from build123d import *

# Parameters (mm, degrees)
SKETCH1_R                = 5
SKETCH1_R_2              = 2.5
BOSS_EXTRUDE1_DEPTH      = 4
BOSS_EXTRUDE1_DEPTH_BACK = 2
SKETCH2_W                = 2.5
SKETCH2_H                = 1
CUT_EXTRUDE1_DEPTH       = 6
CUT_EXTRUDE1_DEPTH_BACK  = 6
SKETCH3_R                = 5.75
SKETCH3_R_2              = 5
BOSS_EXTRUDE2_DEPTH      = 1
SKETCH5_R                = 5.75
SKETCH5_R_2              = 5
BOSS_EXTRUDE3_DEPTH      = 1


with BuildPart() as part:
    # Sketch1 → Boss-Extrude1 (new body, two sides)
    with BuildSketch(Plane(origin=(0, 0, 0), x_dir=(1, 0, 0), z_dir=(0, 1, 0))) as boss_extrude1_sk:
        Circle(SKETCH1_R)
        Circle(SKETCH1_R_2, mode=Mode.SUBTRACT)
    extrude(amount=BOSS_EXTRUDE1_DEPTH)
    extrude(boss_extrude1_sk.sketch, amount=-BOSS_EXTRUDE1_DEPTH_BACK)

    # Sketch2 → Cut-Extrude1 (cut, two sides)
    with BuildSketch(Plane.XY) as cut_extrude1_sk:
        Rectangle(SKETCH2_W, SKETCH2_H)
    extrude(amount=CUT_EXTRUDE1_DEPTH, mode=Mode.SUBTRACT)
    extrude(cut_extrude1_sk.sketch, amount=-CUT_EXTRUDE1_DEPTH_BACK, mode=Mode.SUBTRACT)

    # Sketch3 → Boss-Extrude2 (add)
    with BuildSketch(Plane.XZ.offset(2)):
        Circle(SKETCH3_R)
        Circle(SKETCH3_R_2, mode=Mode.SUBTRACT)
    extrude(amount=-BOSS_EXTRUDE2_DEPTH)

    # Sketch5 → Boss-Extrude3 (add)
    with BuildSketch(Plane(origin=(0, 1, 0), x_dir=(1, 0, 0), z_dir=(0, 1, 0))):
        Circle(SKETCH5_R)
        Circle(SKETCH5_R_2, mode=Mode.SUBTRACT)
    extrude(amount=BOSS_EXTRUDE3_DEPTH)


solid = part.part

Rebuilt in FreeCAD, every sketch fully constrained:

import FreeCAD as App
import Part
import Sketcher
Q = App.Units.Quantity


def add_polygon(sketch, points):
    """Adds a closed chain of lines whose ends are joined by coincident constraints."""
    first, n = sketch.GeometryCount, len(points)
    for a, b in zip(points, points[1:] + points[:1]):
        sketch.addGeometry(Part.LineSegment(App.Vector(*a, 0), App.Vector(*b, 0)), False)
    for i in range(n):
        sketch.addConstraint(Sketcher.Constraint("Coincident", first + i, 2, first + (i + 1) % n, 1))

doc = App.newDocument("Part")
params = doc.addObject("Spreadsheet::Sheet", "Params")
for row, (alias, value) in enumerate([
    ("sketch1_diameter", "10 mm"),
    ("sketch1_diameter2", "5 mm"),
    ("pad1_length", "4 mm"),
    ("pad1_length2", "2 mm"),
    ("sketch2_height", "1 mm"),
    ("sketch2_width", "2.5 mm"),
    ("sketch3_diameter", "10 mm"),
    ("sketch3_diameter2", "11.5 mm"),
    ("pad2_length", "1 mm"),
    ("sketch4_diameter", "10 mm"),
    ("sketch4_diameter2", "11.5 mm"),
    ("pad3_length", "1 mm"),
], start=1):
    params.set(f"A{row}", alias)
    params.set(f"B{row}", "=" + value)
    params.setAlias(f"B{row}", alias)

body = doc.addObject("PartDesign::Body", "Body")

# Sketch on XZ plane
sketch1 = body.newObject("Sketcher::SketchObject", "Sketch")
sketch1.AttachmentSupport = (doc.getObject("XZ_Plane"), [""])
sketch1.MapMode = "FlatFace"
sketch1.addGeometry([
    Part.Circle(App.Vector(0, 0, 0), App.Vector(0, 0, 1), 5),
    Part.Circle(App.Vector(0, 0, 0), App.Vector(0, 0, 1), 2.5),
], False)
sketch1.addConstraint([
    Sketcher.Constraint("Coincident", 0, 3, -1, 1),
    Sketcher.Constraint("Coincident", 1, 3, -1, 1),
    Sketcher.Constraint("Diameter", 0, Q("10 mm")),
    Sketcher.Constraint("Diameter", 1, Q("5 mm")),
])
sketch1.setExpression("Constraints[2]", "Params.sketch1_diameter")
sketch1.setExpression("Constraints[3]", "Params.sketch1_diameter2")
pad1 = body.newObject("PartDesign::Pad", "Pad")
pad1.Profile = sketch1
pad1.Type = "TwoLengths"
pad1.setExpression("Length", "Params.pad1_length")
pad1.setExpression("Length2", "Params.pad1_length2")
pad1.Reversed = True

# Sketch on XY plane
sketch2 = body.newObject("Sketcher::SketchObject", "Sketch001")
sketch2.AttachmentSupport = (doc.getObject("XY_Plane"), [""])
sketch2.MapMode = "FlatFace"
add_polygon(sketch2, [(-1.2, 0.5), (-1.2, -0.5), (1.2, -0.5), (1.2, 0.5)])  # lines 0-3
sketch2.addConstraint([
    Sketcher.Constraint("Vertical", 0),
    Sketcher.Constraint("Horizontal", 1),
    Sketcher.Constraint("Vertical", 2),
    Sketcher.Constraint("Horizontal", 3),
    Sketcher.Constraint("Symmetric", 0, 2, 2, 2, -1, 1),
    Sketcher.Constraint("DistanceY", 0, 2, 0, 1, Q("1 mm")),
    Sketcher.Constraint("DistanceX", 1, 1, 1, 2, Q("2.5 mm")),
])
sketch2.setExpression("Constraints[9]", "Params.sketch2_height")
sketch2.setExpression("Constraints[10]", "Params.sketch2_width")
pocket1 = body.newObject("PartDesign::Pocket", "Pocket")
pocket1.Profile = sketch2
pocket1.Type = "ThroughAll"
pocket1.Midplane = True

# Sketch on XZ plane
sketch3 = body.newObject("Sketcher::SketchObject", "Sketch002")
sketch3.AttachmentSupport = (doc.getObject("XZ_Plane"), [""])
sketch3.MapMode = "FlatFace"
sketch3.AttachmentOffset = App.Placement(App.Vector(0, 0, 2), App.Rotation())
sketch3.addGeometry([
    Part.Circle(App.Vector(0, 0, 0), App.Vector(0, 0, 1), 6),
    Part.Circle(App.Vector(0, 0, 0), App.Vector(0, 0, 1), 5),
], False)
sketch3.addConstraint([
    Sketcher.Constraint("Coincident", 0, 3, -1, 1),
    Sketcher.Constraint("Coincident", 1, 3, -1, 1),
    Sketcher.Constraint("Diameter", 1, Q("10 mm")),
    Sketcher.Constraint("Diameter", 0, Q("11.5 mm")),
])
sketch3.setExpression("Constraints[2]", "Params.sketch3_diameter")
sketch3.setExpression("Constraints[3]", "Params.sketch3_diameter2")
pad2 = body.newObject("PartDesign::Pad", "Pad001")
pad2.Profile = sketch3
pad2.setExpression("Length", "Params.pad2_length")
pad2.Reversed = True

# Sketch on XZ plane
sketch4 = body.newObject("Sketcher::SketchObject", "Sketch003")
sketch4.AttachmentSupport = (doc.getObject("XZ_Plane"), [""])
sketch4.MapMode = "FlatFace"
sketch4.AttachmentOffset = App.Placement(App.Vector(0, 0, -1), App.Rotation())
sketch4.addGeometry([
    Part.Circle(App.Vector(0, 0, 0), App.Vector(0, 0, 1), 6),
    Part.Circle(App.Vector(0, 0, 0), App.Vector(0, 0, 1), 5),
], False)
sketch4.addConstraint([
    Sketcher.Constraint("Coincident", 0, 3, -1, 1),
    Sketcher.Constraint("Coincident", 1, 3, -1, 1),
    Sketcher.Constraint("Diameter", 1, Q("10 mm")),
    Sketcher.Constraint("Diameter", 0, Q("11.5 mm")),
])
sketch4.setExpression("Constraints[2]", "Params.sketch4_diameter")
sketch4.setExpression("Constraints[3]", "Params.sketch4_diameter2")
pad3 = body.newObject("PartDesign::Pad", "Pad002")
pad3.Profile = sketch4
pad3.setExpression("Length", "Params.pad3_length")
pad3.Reversed = True

doc.recompute()
